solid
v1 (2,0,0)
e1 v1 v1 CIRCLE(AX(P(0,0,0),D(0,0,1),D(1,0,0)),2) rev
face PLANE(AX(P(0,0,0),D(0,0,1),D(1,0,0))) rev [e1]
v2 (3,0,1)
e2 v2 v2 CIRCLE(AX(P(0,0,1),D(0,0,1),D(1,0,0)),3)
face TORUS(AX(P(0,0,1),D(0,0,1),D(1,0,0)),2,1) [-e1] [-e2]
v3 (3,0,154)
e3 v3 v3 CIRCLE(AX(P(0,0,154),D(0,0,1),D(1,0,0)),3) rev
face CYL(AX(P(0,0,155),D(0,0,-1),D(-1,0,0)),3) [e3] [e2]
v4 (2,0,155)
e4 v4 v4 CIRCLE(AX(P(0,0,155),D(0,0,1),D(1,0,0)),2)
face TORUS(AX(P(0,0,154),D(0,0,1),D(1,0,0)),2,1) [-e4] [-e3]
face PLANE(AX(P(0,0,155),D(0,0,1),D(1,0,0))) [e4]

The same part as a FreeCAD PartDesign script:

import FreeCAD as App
import Part
import Sketcher
from FreeCAD import Vector


def edges_at(feature, points):
    """Names of the edges that pass closest to the given points."""
    edges = feature.Shape.Edges
    near = lambda p: min(range(len(edges)), key=lambda i: edges[i].distToShape(Part.Vertex(*p))[0])
    return sorted({f"Edge{near(p) + 1}" for p in points})

doc = App.newDocument("Part")
body = doc.addObject("PartDesign::Body", "Body")

# Sketch on XY plane
sketch1 = doc.addObject("Sketcher::SketchObject", "Sketch")
body.addObject(sketch1)
sketch1.AttachmentSupport = (doc.XY_Plane, [""])
sketch1.MapMode = "FlatFace"
sketch1.addGeometry(Part.Circle(Vector(0, 0, 0), Vector(0, 0, 1), 3), False)
sketch1.addConstraint(Sketcher.Constraint("Coincident", 0, 3, -1, 1))
sketch1.addConstraint(Sketcher.Constraint("Diameter", 0, 6.0))
pad1 = doc.addObject("PartDesign::Pad", "Pad")
body.addObject(pad1)
pad1.Profile = sketch1
pad1.Length = 155
doc.recompute()

fillet = doc.addObject("PartDesign::Fillet", "Fillet")
body.addObject(fillet)
fillet.Base = (pad1, edges_at(pad1, [(-3, 0, 0), (-3, 0, 155)]))
fillet.Radius = 1

doc.recompute()
